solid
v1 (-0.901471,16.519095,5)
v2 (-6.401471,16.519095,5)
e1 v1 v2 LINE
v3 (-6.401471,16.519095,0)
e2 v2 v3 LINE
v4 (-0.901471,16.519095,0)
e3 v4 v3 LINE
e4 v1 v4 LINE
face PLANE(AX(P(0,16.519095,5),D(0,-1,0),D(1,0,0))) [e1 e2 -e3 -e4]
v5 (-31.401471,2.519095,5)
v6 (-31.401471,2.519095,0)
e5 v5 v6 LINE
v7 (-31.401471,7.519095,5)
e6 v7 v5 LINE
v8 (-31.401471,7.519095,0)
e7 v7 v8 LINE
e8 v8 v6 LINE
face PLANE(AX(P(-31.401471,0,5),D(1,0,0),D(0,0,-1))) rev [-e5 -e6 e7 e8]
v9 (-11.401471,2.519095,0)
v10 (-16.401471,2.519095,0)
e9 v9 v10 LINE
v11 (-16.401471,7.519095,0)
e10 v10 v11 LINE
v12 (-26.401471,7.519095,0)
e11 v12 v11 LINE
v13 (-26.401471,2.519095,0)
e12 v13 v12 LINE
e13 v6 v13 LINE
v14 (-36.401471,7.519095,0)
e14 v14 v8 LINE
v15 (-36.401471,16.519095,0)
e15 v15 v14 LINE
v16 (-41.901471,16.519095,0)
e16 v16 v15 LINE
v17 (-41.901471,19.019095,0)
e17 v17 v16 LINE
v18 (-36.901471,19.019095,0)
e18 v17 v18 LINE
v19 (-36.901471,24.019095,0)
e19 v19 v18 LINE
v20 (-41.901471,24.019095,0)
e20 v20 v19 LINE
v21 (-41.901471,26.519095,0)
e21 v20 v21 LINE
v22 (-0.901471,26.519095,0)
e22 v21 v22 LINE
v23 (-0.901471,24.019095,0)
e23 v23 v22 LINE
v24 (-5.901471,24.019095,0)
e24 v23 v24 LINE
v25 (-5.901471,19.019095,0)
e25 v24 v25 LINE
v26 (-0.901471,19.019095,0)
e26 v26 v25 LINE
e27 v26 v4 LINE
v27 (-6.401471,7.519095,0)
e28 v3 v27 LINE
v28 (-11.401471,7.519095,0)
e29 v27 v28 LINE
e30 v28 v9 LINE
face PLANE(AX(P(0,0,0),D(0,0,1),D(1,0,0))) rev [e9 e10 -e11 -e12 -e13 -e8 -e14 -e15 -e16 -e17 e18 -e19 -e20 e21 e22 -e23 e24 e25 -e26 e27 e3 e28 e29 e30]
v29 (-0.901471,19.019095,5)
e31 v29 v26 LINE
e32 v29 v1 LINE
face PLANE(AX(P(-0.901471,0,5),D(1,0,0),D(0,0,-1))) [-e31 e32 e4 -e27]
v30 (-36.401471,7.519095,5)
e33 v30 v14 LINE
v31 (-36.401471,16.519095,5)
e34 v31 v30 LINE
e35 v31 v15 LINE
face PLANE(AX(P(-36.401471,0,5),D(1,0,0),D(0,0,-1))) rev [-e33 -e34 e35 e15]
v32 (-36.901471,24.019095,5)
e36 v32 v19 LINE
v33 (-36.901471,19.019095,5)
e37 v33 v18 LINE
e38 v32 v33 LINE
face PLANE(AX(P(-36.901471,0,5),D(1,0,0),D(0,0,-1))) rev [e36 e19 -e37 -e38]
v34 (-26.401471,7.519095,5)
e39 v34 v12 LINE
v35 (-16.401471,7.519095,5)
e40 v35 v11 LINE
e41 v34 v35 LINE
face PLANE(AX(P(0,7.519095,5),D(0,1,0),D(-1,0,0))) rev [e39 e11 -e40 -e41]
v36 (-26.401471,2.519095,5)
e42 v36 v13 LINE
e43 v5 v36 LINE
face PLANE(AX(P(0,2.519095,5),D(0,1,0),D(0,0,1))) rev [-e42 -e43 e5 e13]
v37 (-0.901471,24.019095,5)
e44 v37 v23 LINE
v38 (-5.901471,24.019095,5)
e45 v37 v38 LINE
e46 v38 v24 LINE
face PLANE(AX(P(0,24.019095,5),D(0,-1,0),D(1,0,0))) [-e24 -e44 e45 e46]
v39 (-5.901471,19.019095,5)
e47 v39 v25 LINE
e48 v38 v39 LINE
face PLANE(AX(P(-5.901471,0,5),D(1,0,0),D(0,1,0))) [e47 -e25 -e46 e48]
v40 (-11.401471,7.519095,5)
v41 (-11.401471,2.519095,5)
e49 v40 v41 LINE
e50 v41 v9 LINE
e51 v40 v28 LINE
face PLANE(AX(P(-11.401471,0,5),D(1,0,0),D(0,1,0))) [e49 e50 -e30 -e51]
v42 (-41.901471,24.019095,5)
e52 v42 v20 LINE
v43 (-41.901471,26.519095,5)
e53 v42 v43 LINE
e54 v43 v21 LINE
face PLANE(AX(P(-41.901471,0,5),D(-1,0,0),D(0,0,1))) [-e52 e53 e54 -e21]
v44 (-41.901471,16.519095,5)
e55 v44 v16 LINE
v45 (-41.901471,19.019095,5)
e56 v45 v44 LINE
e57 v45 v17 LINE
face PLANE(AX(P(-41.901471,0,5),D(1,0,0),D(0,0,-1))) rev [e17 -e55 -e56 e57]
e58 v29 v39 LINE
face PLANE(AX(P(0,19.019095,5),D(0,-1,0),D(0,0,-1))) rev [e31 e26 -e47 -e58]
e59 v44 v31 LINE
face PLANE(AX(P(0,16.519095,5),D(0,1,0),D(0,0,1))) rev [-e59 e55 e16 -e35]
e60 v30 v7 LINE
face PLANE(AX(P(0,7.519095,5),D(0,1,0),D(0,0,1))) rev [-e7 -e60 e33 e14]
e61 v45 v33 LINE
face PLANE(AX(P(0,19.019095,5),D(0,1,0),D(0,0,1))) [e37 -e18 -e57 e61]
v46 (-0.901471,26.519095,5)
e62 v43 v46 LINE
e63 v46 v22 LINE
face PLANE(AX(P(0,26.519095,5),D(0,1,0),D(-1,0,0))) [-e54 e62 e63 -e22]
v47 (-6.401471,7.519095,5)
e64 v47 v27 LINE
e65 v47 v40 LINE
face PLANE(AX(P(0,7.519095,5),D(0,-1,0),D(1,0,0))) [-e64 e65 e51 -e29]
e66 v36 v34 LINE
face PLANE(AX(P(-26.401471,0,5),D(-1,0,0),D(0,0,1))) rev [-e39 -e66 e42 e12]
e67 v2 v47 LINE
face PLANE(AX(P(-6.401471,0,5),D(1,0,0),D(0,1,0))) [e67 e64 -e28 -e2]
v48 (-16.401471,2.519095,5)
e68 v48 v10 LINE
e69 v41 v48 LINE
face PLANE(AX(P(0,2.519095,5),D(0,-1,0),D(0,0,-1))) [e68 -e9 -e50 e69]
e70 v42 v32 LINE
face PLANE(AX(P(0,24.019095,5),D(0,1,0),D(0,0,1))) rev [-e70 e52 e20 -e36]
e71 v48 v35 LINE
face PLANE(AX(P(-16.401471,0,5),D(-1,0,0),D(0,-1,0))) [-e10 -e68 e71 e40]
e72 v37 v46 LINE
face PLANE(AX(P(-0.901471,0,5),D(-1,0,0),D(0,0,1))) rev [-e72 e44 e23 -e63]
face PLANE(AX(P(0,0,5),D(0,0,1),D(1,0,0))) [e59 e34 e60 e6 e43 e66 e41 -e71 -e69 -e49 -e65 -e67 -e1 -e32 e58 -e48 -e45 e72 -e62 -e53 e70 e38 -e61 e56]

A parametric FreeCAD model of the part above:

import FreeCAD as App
import Part
import Sketcher
from FreeCAD import Vector
Q = App.Units.Quantity

doc = App.newDocument("Part")
body = doc.addObject("PartDesign::Body", "Body")

# Sketch on XY plane
sketch1 = doc.addObject("Sketcher::SketchObject", "Sketch")
body.addObject(sketch1)
sketch1.AttachmentSupport = (doc.XY_Plane, [""])
sketch1.MapMode = "FlatFace"
sketch1.addGeometry([
    Part.LineSegment(Vector(-16.4, 7.5, 0), Vector(-16.4, 2.5, 0)),  # 0
    Part.LineSegment(Vector(-16.4, 2.5, 0), Vector(-11.4, 2.5, 0)),  # 1
    Part.LineSegment(Vector(-11.4, 2.5, 0), Vector(-11.4, 7.5, 0)),  # 2
    Part.LineSegment(Vector(-11.4, 7.5, 0), Vector(-6.4, 7.5, 0)),  # 3
    Part.LineSegment(Vector(-6.4, 7.5, 0), Vector(-6.4, 16.5, 0)),  # 4
    Part.LineSegment(Vector(-6.4, 16.5, 0), Vector(-0.9, 16.5, 0)),  # 5
    Part.LineSegment(Vector(-0.9, 16.5, 0), Vector(-0.9, 19, 0)),  # 6
    Part.LineSegment(Vector(-0.9, 19, 0), Vector(-5.9, 19, 0)),  # 7
    Part.LineSegment(Vector(-5.9, 19, 0), Vector(-5.9, 24, 0)),  # 8
    Part.LineSegment(Vector(-5.9, 24, 0), Vector(-0.9, 24, 0)),  # 9
    Part.LineSegment(Vector(-0.9, 24, 0), Vector(-0.9, 26.5, 0)),  # 10
    Part.LineSegment(Vector(-0.9, 26.5, 0), Vector(-41.9, 26.5, 0)),  # 11
    Part.LineSegment(Vector(-41.9, 26.5, 0), Vector(-41.9, 24, 0)),  # 12
    Part.LineSegment(Vector(-41.9, 24, 0), Vector(-36.9, 24, 0)),  # 13
    Part.LineSegment(Vector(-36.9, 24, 0), Vector(-36.9, 19, 0)),  # 14
    Part.LineSegment(Vector(-36.9, 19, 0), Vector(-41.9, 19, 0)),  # 15
    Part.LineSegment(Vector(-41.9, 19, 0), Vector(-41.9, 16.5, 0)),  # 16
    Part.LineSegment(Vector(-41.9, 16.5, 0), Vector(-36.4, 16.5, 0)),  # 17
    Part.LineSegment(Vector(-36.4, 16.5, 0), Vector(-36.4, 7.5, 0)),  # 18
    Part.LineSegment(Vector(-36.4, 7.5, 0), Vector(-31.4, 7.5, 0)),  # 19
    Part.LineSegment(Vector(-31.4, 7.5, 0), Vector(-31.4, 2.5, 0)),  # 20
    Part.LineSegment(Vector(-31.4, 2.5, 0), Vector(-26.4, 2.5, 0)),  # 21
    Part.LineSegment(Vector(-26.4, 2.5, 0), Vector(-26.4, 7.5, 0)),  # 22
    Part.LineSegment(Vector(-26.4, 7.5, 0), Vector(-16.4, 7.5, 0)),  # 23
], False)
sketch1.addConstraint([
    Sketcher.Constraint("Coincident", 0, 2, 1, 1),
    Sketcher.Constraint("Coincident", 1, 2, 2, 1),
    Sketcher.Constraint("Coincident", 2, 2, 3, 1),
    Sketcher.Constraint("Coincident", 3, 2, 4, 1),
    Sketcher.Constraint("Coincident", 4, 2, 5, 1),
    Sketcher.Constraint("Coincident", 5, 2, 6, 1),
    Sketcher.Constraint("Coincident", 6, 2, 7, 1),
    Sketcher.Constraint("Coincident", 7, 2, 8, 1),
    Sketcher.Constraint("Coincident", 8, 2, 9, 1),
    Sketcher.Constraint("Coincident", 9, 2, 10, 1),
    Sketcher.Constraint("Coincident", 10, 2, 11, 1),
    Sketcher.Constraint("Coincident", 11, 2, 12, 1),
    Sketcher.Constraint("Coincident", 12, 2, 13, 1),
    Sketcher.Constraint("Coincident", 13, 2, 14, 1),
    Sketcher.Constraint("Coincident", 14, 2, 15, 1),
    Sketcher.Constraint("Coincident", 15, 2, 16, 1),
    Sketcher.Constraint("Coincident", 16, 2, 17, 1),
    Sketcher.Constraint("Coincident", 17, 2, 18, 1),
    Sketcher.Constraint("Coincident", 18, 2, 19, 1),
    Sketcher.Constraint("Coincident", 19, 2, 20, 1),
    Sketcher.Constraint("Coincident", 20, 2, 21, 1),
    Sketcher.Constraint("Coincident", 21, 2, 22, 1),
    Sketcher.Constraint("Coincident", 22, 2, 23, 1),
    Sketcher.Constraint("Coincident", 23, 2, 0, 1),
    Sketcher.Constraint("Vertical", 0),
    Sketcher.Constraint("Horizontal", 1),
    Sketcher.Constraint("Vertical", 2),
    Sketcher.Constraint("Horizontal", 3),
    Sketcher.Constraint("Vertical", 4),
    Sketcher.Constraint("Horizontal", 5),
    Sketcher.Constraint("Vertical", 6),
    Sketcher.Constraint("Horizontal", 7),
    Sketcher.Constraint("Vertical", 8),
    Sketcher.Constraint("Horizontal", 9),
    Sketcher.Constraint("Vertical", 10),
    Sketcher.Constraint("Horizontal", 11),
    Sketcher.Constraint("Vertical", 12),
    Sketcher.Constraint("Horizontal", 13),
    Sketcher.Constraint("Vertical", 14),
    Sketcher.Constraint("Horizontal", 15),
    Sketcher.Constraint("Vertical", 16),
    Sketcher.Constraint("Horizontal", 17),
    Sketcher.Constraint("Vertical", 18),
    Sketcher.Constraint("Horizontal", 19),
    Sketcher.Constraint("Vertical", 20),
    Sketcher.Constraint("Horizontal", 21),
    Sketcher.Constraint("Vertical", 22),
    Sketcher.Constraint("Horizontal", 23),
    Sketcher.Constraint("Horizontal", 9, 2, 12, 2),
    Sketcher.Constraint("Horizontal", 7, 2, 14, 2),
    Sketcher.Constraint("Horizontal", 5, 2, 16, 2),
    Sketcher.Constraint("Horizontal", 3, 2, 18, 2),
    Sketcher.Constraint("Horizontal", 1, 2, 20, 2),
    Sketcher.Constraint("Horizontal", 19, 2, 22, 2),
    Sketcher.Constraint("Vertical", 6, 2, 9, 2),
    Sketcher.Constraint("Vertical", 12, 2, 15, 2),
    Sketcher.Constraint("Equal", 1, 3),
    Sketcher.Constraint("Equal", 3, 7),
    Sketcher.Constraint("Equal", 9, 13),
    Sketcher.Constraint("Equal", 5, 17),
    Sketcher.Constraint("Equal", 15, 19),
    Sketcher.Constraint("Equal", 19, 21),
    Sketcher.Constraint("Equal", 21, 0),
    Sketcher.Constraint("Equal", 2, 8),
    Sketcher.Constraint("Equal", 6, 10),
    Sketcher.Constraint("DistanceX", 1, 1, 1, 2, Q("5 mm")),
    Sketcher.Constraint("DistanceX", 11, 2, 11, 1, Q("41 mm")),
    Sketcher.Constraint("DistanceX", 23, 1, 23, 2, Q("10 mm")),
    Sketcher.Constraint("DistanceY", 4, 1, 4, 2, Q("9 mm")),
    Sketcher.Constraint("DistanceY", 6, 1, 6, 2, Q("2.5 mm")),
    Sketcher.Constraint("DistanceX", 0, 2, -1, 1, Q("16.401471 mm")),
    Sketcher.Constraint("DistanceY", -1, 1, 0, 2, Q("2.519095 mm")),
])
pad1 = doc.addObject("PartDesign::Pad", "Pad")
body.addObject(pad1)
pad1.Profile = sketch1
pad1.Length = 5

doc.recompute()
